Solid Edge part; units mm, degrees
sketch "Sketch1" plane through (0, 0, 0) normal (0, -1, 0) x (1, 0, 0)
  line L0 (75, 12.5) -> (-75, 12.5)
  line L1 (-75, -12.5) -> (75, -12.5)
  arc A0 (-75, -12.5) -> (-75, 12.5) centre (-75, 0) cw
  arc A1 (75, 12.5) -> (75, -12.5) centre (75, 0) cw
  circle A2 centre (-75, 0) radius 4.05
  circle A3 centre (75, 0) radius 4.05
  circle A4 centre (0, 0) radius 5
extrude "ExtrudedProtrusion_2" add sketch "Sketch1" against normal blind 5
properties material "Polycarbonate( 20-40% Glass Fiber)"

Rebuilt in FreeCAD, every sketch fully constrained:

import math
import FreeCAD as App
import Part
import Sketcher

V = App.Vector
Q = App.Units.Quantity

doc = App.newDocument("Part")
body = doc.addObject("PartDesign::Body", "Body")

# Sketch on XZ plane
sketch1 = body.newObject("Sketcher::SketchObject", "Sketch")
sketch1.AttachmentSupport = (doc.getObject("XZ_Plane"), [""])
sketch1.MapMode = "FlatFace"
sketch1.addGeometry([
    Part.ArcOfCircle(Part.Circle(V(75, 0, 0), V(0, 0, 1), 12.5), math.radians(-90), math.radians(90)),  # 0
    Part.LineSegment(V(75, 12.5, 0), V(-75, 12.5, 0)),  # 1
    Part.ArcOfCircle(Part.Circle(V(-75, 0, 0), V(0, 0, 1), 12.5), math.radians(90), math.radians(270)),  # 2
    Part.LineSegment(V(-75, -12.5, 0), V(75, -12.5, 0)),  # 3
    Part.Circle(V(-75, 0, 0), V(0, 0, 1), 4.05),  # 4
    Part.Circle(V(0, 0, 0), V(0, 0, 1), 5),  # 5
    Part.Circle(V(75, 0, 0), V(0, 0, 1), 4.05),  # 6
], False)
sketch1.addConstraint([
    Sketcher.Constraint("Tangent", 0, 2, 1, 1),
    Sketcher.Constraint("Tangent", 1, 2, 2, 1),
    Sketcher.Constraint("Tangent", 2, 2, 3, 1),
    Sketcher.Constraint("Tangent", 3, 2, 0, 1),
    Sketcher.Constraint("Horizontal", 1),
    Sketcher.Constraint("Horizontal", 3),
    Sketcher.Constraint("Coincident", 5, 3, -1, 1),
    Sketcher.Constraint("Coincident", 4, 3, 2, 3),
    Sketcher.Constraint("Coincident", 6, 3, 0, 3),
    Sketcher.Constraint("Equal", 4, 6),
    Sketcher.Constraint("Symmetric", 0, 3, 2, 3, -1, 1),
    Sketcher.Constraint("Diameter", 5, Q("10 mm")),
    Sketcher.Constraint("Diameter", 4, Q("8.1 mm")),
    Sketcher.Constraint("Radius", 0, Q("12.5 mm")),
    Sketcher.Constraint("DistanceX", 1, 2, 1, 1, Q("150 mm")),
])
pad1 = body.newObject("PartDesign::Pad", "Pad")
pad1.Profile = sketch1
pad1.Length = 5
pad1.Reversed = True

doc.recompute()
